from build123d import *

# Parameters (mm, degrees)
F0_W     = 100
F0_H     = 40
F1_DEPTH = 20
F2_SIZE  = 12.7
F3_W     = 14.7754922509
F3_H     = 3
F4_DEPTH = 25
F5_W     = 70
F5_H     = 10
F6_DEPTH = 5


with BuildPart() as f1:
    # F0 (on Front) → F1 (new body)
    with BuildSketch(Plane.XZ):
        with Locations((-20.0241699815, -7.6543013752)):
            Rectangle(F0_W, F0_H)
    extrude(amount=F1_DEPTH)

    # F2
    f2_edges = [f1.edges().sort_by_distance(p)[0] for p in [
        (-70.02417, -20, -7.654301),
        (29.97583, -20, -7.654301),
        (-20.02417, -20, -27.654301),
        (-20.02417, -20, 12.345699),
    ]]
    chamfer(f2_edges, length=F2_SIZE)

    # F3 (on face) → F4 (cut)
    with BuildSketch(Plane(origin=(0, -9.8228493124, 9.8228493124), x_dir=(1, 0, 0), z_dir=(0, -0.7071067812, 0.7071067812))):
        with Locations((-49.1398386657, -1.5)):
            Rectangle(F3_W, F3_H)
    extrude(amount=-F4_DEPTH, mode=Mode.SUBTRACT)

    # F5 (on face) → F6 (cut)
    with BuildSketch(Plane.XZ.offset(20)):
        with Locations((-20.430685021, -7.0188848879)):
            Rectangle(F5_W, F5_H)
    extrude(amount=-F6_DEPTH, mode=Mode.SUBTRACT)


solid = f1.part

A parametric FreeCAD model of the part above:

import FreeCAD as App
import Part
import Sketcher
Q = App.Units.Quantity


def edges_at(feature, points):
    """Names of the edges that pass closest to the given points."""
    edges = feature.Shape.Edges
    near = lambda p: min(range(len(edges)), key=lambda i: edges[i].distToShape(Part.Vertex(*p))[0])
    return sorted({f"Edge{near(p) + 1}" for p in points})

doc = App.newDocument("Part")
body = doc.addObject("PartDesign::Body", "Body")

# Sketch on XZ plane
sketch1 = body.newObject("Sketcher::SketchObject", "Sketch")
sketch1.AttachmentSupport = (doc.getObject("XZ_Plane"), [""])
sketch1.MapMode = "FlatFace"
sketch1.addGeometry([
    Part.LineSegment(App.Vector(-70.02417, 12.345699, 0), App.Vector(-70.02417, -27.654301, 0)),
    Part.LineSegment(App.Vector(-70.02417, -27.654301, 0), App.Vector(29.97583, -27.654301, 0)),
    Part.LineSegment(App.Vector(29.97583, -27.654301, 0), App.Vector(29.97583, 12.345699, 0)),
    Part.LineSegment(App.Vector(29.97583, 12.345699, 0), App.Vector(-70.02417, 12.345699, 0)),
], False)
sketch1.addConstraint([
    Sketcher.Constraint("Coincident", 0, 2, 1, 1),
    Sketcher.Constraint("Coincident", 1, 2, 2, 1),
    Sketcher.Constraint("Coincident", 2, 2, 3, 1),
    Sketcher.Constraint("Coincident", 3, 2, 0, 1),
    Sketcher.Constraint("Vertical", 0),
    Sketcher.Constraint("Horizontal", 1),
    Sketcher.Constraint("Vertical", 2),
    Sketcher.Constraint("Horizontal", 3),
    Sketcher.Constraint("DistanceX", 1, 1, 1, 2, Q("100 mm")),
    Sketcher.Constraint("DistanceY", 0, 2, 0, 1, Q("40 mm")),
    Sketcher.Constraint("DistanceY", 0, 2, -1, 1, Q("27.654301 mm")),
    Sketcher.Constraint("DistanceX", 0, 2, -1, 1, Q("70.02417 mm")),
])
pad1 = body.newObject("PartDesign::Pad", "Pad")
pad1.Profile = sketch1
pad1.Length = 20
doc.recompute()

chamfer = body.newObject("PartDesign::Chamfer", "Chamfer")
chamfer.Base = (pad1, edges_at(pad1, [
    (-70.024, -20, -7.654),
    (29.976, -20, -7.654),
    (-20.024, -20, -27.654),
    (-20.024, -20, 12.346),
]))
chamfer.Size = 12.7

# Sketch on an angled plane
sketch2 = body.newObject("Sketcher::SketchObject", "Sketch001")
sketch2.Placement = App.Placement(App.Vector(0, -9.822849, 9.822849), App.Rotation(App.Vector(1, 0, 0), App.Vector(0, 0.707106781, 0.707106781), App.Vector(0, -0.707106781, 0.707106781), "ZXY"))
sketch2.addGeometry([
    Part.LineSegment(App.Vector(-56.527585, 0, 0), App.Vector(-56.527585, -3, 0)),
    Part.LineSegment(App.Vector(-56.527585, -3, 0), App.Vector(-41.752093, -3, 0)),
    Part.LineSegment(App.Vector(-41.752093, -3, 0), App.Vector(-41.752093, 0, 0)),
    Part.LineSegment(App.Vector(-41.752093, 0, 0), App.Vector(-56.527585, 0, 0)),
], False)
sketch2.addConstraint([
    Sketcher.Constraint("Coincident", 0, 2, 1, 1),
    Sketcher.Constraint("Coincident", 1, 2, 2, 1),
    Sketcher.Constraint("Coincident", 2, 2, 3, 1),
    Sketcher.Constraint("Coincident", 3, 2, 0, 1),
    Sketcher.Constraint("Vertical", 0),
    Sketcher.Constraint("Horizontal", 1),
    Sketcher.Constraint("Vertical", 2),
    Sketcher.Constraint("Horizontal", 3),
    Sketcher.Constraint("PointOnObject", 2, 2, -1),
    Sketcher.Constraint("DistanceY", 0, 2, 0, 1, Q("3 mm")),
    Sketcher.Constraint("DistanceX", 1, 1, 1, 2, Q("14.775492 mm")),
    Sketcher.Constraint("DistanceX", 0, 2, -1, 1, Q("56.527585 mm")),
])
pocket1 = body.newObject("PartDesign::Pocket", "Pocket")
pocket1.Profile = sketch2
pocket1.Length = 25

# Sketch on XZ plane
sketch3 = body.newObject("Sketcher::SketchObject", "Sketch002")
sketch3.AttachmentSupport = (doc.getObject("XZ_Plane"), [""])
sketch3.MapMode = "FlatFace"
sketch3.AttachmentOffset = App.Placement(App.Vector(0, 0, 20), App.Rotation())
sketch3.addGeometry([
    Part.LineSegment(App.Vector(-55.430685, -2.018885, 0), App.Vector(-55.430685, -12.018885, 0)),
    Part.LineSegment(App.Vector(-55.430685, -12.018885, 0), App.Vector(14.569315, -12.018885, 0)),
    Part.LineSegment(App.Vector(14.569315, -12.018885, 0), App.Vector(14.569315, -2.018885, 0)),
    Part.LineSegment(App.Vector(14.569315, -2.018885, 0), App.Vector(-55.430685, -2.018885, 0)),
], False)
sketch3.addConstraint([
    Sketcher.Constraint("Coincident", 0, 2, 1, 1),
    Sketcher.Constraint("Coincident", 1, 2, 2, 1),
    Sketcher.Constraint("Coincident", 2, 2, 3, 1),
    Sketcher.Constraint("Coincident", 3, 2, 0, 1),
    Sketcher.Constraint("Vertical", 0),
    Sketcher.Constraint("Horizontal", 1),
    Sketcher.Constraint("Vertical", 2),
    Sketcher.Constraint("Horizontal", 3),
    Sketcher.Constraint("DistanceX", 1, 1, 1, 2, Q("70 mm")),
    Sketcher.Constraint("DistanceY", 0, 2, 0, 1, Q("10 mm")),
    Sketcher.Constraint("DistanceX", 0, 2, -1, 1, Q("55.430685 mm")),
    Sketcher.Constraint("DistanceY", 0, 2, -1, 1, Q("12.018885 mm")),
])
pocket2 = body.newObject("PartDesign::Pocket", "Pocket001")
pocket2.Profile = sketch3
pocket2.Length = 5

doc.recompute()
